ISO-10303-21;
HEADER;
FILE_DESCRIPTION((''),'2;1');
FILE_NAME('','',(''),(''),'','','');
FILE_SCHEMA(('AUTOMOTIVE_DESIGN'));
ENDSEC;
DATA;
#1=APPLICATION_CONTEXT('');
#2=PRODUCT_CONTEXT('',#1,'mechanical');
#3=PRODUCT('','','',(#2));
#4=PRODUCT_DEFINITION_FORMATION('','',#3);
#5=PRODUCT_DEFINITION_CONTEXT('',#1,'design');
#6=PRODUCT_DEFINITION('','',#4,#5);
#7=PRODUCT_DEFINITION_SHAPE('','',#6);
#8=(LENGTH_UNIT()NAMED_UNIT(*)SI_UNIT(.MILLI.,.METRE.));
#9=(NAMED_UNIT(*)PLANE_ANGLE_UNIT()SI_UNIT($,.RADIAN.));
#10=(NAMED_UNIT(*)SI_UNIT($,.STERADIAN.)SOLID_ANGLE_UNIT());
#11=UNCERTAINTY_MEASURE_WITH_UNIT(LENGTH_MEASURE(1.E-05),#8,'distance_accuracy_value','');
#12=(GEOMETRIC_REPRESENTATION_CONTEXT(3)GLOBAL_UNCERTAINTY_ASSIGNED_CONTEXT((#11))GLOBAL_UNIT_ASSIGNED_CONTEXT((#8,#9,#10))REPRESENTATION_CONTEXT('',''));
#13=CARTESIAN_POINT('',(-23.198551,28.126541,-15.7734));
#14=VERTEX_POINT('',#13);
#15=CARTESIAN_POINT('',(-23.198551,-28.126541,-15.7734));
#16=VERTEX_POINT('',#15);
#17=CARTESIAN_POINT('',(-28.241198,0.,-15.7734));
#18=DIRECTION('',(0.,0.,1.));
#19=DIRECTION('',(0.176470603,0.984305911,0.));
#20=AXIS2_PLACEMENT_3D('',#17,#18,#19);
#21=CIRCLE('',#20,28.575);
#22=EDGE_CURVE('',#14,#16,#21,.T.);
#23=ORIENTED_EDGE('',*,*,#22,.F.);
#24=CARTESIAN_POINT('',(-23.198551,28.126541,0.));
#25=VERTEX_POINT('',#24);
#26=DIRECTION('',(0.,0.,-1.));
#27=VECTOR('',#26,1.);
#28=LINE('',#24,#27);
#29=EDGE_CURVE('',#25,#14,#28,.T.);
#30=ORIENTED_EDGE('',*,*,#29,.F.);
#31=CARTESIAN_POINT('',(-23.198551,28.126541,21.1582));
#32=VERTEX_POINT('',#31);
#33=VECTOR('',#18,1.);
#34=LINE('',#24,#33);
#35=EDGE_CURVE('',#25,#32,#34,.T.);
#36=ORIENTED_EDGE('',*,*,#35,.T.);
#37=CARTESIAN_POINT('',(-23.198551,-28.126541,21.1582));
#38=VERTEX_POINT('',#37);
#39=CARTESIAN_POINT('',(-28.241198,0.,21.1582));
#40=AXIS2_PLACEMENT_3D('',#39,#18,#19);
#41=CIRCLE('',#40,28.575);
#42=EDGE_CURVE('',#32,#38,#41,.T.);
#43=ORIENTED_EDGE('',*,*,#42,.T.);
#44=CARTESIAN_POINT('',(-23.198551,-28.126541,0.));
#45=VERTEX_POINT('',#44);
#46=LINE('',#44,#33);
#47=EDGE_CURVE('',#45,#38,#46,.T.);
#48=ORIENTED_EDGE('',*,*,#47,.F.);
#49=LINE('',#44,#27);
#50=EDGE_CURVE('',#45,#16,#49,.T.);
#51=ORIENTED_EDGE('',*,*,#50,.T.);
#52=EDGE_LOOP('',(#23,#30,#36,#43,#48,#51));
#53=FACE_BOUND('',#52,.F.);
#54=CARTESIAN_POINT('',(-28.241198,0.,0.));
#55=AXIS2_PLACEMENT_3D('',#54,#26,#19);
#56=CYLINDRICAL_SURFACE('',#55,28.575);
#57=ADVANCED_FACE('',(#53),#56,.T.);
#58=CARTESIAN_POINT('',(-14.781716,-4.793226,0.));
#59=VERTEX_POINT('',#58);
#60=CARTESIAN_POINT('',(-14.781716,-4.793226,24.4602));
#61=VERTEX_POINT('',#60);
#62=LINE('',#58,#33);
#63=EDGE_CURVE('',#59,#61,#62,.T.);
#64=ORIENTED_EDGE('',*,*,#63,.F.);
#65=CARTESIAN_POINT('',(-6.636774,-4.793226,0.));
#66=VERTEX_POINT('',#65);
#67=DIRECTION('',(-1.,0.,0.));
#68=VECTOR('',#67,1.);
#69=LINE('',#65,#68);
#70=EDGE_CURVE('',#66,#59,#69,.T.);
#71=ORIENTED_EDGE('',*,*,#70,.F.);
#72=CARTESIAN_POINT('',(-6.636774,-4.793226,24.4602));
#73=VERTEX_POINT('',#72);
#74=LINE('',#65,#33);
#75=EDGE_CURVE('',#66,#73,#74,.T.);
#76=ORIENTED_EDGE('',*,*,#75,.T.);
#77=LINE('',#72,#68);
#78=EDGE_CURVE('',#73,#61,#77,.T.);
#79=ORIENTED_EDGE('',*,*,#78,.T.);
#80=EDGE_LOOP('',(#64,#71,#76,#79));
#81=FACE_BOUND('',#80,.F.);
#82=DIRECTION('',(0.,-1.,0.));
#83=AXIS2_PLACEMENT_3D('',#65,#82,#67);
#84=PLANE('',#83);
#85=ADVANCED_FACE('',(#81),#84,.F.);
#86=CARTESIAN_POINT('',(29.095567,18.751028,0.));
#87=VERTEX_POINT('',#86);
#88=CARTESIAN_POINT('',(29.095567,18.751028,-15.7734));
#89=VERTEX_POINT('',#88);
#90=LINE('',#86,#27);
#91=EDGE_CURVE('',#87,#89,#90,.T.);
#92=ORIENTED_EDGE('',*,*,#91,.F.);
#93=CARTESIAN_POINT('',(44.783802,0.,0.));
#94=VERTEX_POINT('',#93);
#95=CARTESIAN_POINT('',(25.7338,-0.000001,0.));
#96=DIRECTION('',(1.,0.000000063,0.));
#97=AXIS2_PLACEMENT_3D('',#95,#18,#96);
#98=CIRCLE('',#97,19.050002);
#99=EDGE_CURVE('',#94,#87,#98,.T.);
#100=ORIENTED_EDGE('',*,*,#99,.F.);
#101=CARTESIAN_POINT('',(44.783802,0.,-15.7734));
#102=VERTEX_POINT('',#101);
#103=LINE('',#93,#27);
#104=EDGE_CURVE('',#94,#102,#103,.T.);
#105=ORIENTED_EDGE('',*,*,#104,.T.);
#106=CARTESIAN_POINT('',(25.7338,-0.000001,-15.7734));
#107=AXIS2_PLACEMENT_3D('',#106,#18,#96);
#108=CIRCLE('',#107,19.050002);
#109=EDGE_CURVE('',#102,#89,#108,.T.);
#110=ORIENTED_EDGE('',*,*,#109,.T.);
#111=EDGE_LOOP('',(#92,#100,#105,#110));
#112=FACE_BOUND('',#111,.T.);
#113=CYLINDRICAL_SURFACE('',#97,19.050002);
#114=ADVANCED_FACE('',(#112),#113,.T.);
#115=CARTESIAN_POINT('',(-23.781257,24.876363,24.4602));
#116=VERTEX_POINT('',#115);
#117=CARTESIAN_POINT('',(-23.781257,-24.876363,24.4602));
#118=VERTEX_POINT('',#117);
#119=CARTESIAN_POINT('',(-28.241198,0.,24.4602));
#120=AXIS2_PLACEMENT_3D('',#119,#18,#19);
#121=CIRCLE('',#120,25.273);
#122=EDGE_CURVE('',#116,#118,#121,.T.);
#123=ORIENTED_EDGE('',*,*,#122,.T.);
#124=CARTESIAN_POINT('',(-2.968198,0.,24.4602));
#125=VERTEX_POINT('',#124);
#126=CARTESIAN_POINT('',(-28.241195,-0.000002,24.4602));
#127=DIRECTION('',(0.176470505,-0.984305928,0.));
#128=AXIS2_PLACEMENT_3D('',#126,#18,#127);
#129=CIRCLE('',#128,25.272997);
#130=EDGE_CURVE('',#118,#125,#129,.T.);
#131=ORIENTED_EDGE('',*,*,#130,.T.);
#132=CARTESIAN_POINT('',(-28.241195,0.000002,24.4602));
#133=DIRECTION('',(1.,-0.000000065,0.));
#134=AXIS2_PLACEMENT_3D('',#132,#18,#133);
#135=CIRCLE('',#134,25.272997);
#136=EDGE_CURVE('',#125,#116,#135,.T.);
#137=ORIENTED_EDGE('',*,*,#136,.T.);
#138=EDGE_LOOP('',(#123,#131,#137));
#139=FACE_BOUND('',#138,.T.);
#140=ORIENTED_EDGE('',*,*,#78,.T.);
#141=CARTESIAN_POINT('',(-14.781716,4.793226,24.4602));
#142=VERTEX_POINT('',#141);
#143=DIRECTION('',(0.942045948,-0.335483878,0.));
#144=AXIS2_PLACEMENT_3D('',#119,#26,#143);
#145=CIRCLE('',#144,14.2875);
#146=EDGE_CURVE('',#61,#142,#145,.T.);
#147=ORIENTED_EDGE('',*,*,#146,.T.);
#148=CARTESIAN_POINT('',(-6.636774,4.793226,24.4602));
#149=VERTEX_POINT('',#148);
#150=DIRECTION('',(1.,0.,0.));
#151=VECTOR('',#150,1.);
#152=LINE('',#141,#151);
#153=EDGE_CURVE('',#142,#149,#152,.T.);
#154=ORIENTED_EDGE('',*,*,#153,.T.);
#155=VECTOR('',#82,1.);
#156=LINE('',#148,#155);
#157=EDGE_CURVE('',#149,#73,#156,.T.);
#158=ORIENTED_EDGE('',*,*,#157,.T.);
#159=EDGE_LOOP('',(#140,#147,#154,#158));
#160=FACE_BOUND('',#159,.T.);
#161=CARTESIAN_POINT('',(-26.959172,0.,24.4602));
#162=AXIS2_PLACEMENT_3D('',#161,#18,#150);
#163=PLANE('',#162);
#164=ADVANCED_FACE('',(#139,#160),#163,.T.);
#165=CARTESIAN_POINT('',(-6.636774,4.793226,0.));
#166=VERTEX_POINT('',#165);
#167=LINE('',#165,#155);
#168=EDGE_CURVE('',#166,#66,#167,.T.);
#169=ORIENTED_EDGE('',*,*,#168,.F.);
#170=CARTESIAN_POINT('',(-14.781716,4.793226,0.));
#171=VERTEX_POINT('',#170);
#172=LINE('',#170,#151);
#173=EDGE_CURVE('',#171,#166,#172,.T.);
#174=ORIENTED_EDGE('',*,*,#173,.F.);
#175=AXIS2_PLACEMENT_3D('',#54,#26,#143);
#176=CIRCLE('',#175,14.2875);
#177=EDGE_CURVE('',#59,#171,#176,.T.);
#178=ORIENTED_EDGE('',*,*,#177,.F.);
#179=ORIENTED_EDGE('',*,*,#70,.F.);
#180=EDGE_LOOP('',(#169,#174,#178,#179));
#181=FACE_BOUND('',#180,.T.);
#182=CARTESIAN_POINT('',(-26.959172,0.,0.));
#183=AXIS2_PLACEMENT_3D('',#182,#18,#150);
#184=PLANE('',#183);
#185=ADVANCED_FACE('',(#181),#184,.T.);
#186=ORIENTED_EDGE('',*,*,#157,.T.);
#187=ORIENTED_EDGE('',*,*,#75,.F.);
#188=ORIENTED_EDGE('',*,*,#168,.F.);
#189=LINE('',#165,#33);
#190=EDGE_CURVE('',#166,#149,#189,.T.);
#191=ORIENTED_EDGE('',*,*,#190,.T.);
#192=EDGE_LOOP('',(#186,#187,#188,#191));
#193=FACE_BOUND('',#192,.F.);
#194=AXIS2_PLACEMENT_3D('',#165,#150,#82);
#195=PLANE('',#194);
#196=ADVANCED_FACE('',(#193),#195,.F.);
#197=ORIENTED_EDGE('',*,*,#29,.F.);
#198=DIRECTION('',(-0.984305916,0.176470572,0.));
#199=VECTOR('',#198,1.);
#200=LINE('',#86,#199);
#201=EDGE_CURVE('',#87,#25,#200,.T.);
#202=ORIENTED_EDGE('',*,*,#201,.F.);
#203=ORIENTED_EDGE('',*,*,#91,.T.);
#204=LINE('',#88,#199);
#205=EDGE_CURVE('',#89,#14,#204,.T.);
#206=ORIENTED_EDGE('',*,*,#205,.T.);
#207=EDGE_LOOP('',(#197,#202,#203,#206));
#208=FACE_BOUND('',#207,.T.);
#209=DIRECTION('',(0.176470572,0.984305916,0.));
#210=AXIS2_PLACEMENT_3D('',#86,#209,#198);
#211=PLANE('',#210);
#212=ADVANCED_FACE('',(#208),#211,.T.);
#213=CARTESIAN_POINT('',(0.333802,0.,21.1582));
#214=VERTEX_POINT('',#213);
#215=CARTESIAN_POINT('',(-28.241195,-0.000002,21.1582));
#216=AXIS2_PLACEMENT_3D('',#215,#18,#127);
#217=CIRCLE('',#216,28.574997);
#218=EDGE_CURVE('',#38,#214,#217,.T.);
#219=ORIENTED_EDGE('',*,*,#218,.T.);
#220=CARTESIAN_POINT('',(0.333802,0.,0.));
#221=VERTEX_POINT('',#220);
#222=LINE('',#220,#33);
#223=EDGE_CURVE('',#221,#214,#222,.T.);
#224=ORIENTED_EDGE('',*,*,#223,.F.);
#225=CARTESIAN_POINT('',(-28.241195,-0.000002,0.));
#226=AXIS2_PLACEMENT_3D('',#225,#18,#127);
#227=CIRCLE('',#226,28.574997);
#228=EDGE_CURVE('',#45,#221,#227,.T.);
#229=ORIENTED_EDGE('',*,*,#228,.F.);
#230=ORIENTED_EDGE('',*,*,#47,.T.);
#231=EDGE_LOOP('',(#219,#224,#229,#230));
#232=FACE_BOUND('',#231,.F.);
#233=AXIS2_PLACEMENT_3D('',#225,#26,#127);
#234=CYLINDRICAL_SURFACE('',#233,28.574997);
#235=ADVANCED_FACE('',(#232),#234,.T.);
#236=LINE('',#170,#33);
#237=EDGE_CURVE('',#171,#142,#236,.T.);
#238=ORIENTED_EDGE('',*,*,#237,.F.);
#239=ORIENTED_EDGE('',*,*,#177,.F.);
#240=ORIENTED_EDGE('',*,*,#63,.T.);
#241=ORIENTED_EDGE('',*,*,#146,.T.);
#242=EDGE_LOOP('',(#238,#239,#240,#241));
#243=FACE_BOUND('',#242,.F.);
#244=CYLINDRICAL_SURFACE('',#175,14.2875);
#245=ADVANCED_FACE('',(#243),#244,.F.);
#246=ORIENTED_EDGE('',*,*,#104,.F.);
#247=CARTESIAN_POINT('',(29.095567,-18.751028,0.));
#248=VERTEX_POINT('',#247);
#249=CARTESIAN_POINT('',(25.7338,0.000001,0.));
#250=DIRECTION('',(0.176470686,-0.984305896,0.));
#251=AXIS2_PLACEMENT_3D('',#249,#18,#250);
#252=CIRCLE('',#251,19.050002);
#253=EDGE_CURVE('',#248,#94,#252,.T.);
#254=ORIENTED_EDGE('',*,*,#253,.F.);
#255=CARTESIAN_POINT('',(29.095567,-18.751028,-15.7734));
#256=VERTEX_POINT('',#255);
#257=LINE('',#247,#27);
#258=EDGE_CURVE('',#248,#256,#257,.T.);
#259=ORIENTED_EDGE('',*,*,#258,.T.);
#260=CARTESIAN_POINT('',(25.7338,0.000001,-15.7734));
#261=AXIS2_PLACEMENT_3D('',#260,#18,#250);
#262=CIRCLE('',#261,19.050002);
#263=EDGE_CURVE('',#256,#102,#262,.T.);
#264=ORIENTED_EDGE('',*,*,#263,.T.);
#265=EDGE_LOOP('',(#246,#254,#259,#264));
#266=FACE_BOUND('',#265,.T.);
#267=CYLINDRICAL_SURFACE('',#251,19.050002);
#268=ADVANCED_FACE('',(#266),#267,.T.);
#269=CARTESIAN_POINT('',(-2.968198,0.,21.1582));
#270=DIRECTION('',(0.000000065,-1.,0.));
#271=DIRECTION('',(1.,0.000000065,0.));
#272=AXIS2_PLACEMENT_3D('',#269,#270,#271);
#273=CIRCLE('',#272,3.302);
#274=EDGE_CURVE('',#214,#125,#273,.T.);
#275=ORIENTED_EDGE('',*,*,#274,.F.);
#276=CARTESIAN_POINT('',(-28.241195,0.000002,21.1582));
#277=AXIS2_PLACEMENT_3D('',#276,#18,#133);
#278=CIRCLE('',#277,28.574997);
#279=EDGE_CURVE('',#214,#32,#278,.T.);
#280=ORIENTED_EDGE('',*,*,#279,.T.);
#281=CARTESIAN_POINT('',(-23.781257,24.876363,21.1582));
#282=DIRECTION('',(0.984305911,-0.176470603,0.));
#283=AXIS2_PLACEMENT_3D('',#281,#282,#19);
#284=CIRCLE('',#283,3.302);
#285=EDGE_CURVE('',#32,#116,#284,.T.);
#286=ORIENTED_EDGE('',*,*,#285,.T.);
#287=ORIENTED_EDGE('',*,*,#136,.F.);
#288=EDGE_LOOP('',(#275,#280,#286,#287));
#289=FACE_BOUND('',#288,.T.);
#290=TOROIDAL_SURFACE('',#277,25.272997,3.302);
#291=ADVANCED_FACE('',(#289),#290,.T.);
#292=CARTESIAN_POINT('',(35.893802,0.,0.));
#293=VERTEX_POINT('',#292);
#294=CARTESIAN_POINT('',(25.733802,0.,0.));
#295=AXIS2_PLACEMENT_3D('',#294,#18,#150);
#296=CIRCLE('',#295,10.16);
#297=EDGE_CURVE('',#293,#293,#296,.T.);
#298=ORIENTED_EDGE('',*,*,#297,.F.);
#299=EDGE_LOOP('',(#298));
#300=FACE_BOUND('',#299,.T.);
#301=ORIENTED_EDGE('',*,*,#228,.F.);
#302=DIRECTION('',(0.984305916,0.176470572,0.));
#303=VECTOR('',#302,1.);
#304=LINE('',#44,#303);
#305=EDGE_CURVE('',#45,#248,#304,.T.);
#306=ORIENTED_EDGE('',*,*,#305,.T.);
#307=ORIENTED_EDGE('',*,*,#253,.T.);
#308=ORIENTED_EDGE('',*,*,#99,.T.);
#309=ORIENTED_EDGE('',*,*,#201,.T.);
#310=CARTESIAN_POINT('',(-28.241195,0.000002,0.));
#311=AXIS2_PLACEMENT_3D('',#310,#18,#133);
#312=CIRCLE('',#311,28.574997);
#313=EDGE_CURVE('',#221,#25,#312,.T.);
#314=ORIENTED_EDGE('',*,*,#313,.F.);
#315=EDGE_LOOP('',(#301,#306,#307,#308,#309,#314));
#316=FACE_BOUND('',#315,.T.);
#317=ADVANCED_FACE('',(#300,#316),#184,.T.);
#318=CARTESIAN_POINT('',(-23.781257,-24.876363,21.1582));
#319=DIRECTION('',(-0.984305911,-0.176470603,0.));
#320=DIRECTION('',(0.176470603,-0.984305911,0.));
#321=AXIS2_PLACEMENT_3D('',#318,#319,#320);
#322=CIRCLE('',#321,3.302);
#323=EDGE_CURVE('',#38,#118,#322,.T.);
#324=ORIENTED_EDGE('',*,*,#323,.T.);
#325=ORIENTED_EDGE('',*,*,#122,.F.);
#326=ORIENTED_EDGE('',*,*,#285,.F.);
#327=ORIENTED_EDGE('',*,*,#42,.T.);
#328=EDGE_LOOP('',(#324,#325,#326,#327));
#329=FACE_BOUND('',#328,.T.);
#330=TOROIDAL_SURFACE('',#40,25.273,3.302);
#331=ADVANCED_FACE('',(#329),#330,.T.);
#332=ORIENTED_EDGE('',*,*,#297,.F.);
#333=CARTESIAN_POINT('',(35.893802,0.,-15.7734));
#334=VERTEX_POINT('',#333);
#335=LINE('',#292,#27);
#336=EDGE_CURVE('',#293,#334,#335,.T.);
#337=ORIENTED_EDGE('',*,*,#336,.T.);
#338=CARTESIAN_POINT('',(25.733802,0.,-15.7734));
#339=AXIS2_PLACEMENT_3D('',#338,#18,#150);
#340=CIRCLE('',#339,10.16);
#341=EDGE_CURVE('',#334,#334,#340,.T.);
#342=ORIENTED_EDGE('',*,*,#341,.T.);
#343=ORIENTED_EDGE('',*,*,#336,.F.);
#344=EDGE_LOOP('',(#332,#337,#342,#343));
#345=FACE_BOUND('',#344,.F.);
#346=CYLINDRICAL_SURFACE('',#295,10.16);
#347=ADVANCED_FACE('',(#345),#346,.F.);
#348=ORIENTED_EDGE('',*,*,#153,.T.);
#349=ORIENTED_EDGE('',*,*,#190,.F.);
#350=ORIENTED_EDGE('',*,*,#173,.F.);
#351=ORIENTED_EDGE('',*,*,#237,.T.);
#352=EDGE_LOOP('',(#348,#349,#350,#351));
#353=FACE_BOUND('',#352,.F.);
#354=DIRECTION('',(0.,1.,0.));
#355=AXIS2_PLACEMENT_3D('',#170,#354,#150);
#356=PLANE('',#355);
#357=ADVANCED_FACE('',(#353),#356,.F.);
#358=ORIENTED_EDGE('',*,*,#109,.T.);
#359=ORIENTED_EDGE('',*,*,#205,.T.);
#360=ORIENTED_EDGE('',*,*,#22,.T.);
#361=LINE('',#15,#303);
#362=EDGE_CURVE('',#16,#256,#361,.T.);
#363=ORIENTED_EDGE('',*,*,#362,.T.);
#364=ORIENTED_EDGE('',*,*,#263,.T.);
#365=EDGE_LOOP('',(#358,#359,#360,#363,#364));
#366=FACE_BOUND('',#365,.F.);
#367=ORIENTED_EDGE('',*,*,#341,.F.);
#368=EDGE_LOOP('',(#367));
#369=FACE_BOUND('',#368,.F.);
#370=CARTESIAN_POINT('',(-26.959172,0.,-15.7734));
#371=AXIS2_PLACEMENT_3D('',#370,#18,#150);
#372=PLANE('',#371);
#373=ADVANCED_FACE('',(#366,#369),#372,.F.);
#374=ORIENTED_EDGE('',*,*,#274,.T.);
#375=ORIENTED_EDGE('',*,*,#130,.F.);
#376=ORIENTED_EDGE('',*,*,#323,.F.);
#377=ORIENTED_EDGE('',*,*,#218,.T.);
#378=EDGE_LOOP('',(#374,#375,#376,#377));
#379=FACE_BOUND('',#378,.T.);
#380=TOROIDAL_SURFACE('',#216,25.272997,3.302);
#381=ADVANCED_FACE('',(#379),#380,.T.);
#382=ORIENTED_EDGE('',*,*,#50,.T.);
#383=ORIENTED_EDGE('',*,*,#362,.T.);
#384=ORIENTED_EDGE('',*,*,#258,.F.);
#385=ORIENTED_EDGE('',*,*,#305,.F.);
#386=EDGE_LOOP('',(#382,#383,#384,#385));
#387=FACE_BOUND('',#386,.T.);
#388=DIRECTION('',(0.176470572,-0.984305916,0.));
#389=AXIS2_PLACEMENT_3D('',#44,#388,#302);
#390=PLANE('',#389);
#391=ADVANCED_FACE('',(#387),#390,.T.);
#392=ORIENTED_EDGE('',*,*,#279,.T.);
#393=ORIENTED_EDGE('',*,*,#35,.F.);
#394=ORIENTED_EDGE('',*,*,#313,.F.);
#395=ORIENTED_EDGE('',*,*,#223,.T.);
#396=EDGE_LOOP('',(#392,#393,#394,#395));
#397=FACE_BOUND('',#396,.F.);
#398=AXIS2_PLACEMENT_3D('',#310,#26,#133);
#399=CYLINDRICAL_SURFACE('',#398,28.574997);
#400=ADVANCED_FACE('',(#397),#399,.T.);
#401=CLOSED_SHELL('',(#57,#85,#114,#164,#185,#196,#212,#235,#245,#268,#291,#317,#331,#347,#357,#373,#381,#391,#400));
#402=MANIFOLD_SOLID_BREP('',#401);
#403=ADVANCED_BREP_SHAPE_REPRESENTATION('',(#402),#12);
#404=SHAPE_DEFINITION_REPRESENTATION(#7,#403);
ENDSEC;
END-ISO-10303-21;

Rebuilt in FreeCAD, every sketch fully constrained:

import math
import FreeCAD as App
import Part
import Sketcher
Q = App.Units.Quantity


def edges_at(feature, points):
    """Names of the edges that pass closest to the given points."""
    edges = feature.Shape.Edges
    near = lambda p: min(range(len(edges)), key=lambda i: edges[i].distToShape(Part.Vertex(*p))[0])
    return sorted({f"Edge{near(p) + 1}" for p in points})

doc = App.newDocument("Part")
params = doc.addObject("Spreadsheet::Sheet", "Params")
for row, (alias, value) in enumerate([
    ("sketch1_diameter", "0.8 in"),
    ("sketch1_radius", "0.7500001 in"),
    ("sketch1_radius2", "1.125 in"),
    ("pad1_length", "0.621 in"),
    ("sketch2_radius", "1.1249999 in"),
    ("sketch2_radius2", "0.5625 in"),
    ("pad2_length", "0.963 in"),
    ("fillet_radius", "0.13 in"),
], start=1):
    params.set(f"A{row}", alias)
    params.set(f"B{row}", "=" + value)
    params.setAlias(f"B{row}", alias)

body = doc.addObject("PartDesign::Body", "Body")

sketch1 = body.newObject("Sketcher::SketchObject", "Sketch")
sketch1.AttachmentSupport = (doc.getObject("XY_Plane"), [""])
sketch1.MapMode = "FlatFace"
sketch1.addGeometry([
    Part.ArcOfCircle(Part.Circle(App.Vector(-28, 0, 0), App.Vector(0, 0, 1), 29), math.radians(80), math.radians(280)),
    Part.LineSegment(App.Vector(-23, -28, 0), App.Vector(29, -19, 0)),
    Part.ArcOfCircle(Part.Circle(App.Vector(26, 0, 0), App.Vector(0, 0, 1), 19), math.radians(-80), math.radians(0)),
    Part.ArcOfCircle(Part.Circle(App.Vector(26, 0, 0), App.Vector(0, 0, 1), 19), math.radians(0), math.radians(80)),
    Part.LineSegment(App.Vector(29, 19, 0), App.Vector(-23, 28, 0)),
    Part.Circle(App.Vector(26, 0, 0), App.Vector(0, 0, 1), 10),
], False)
sketch1.addConstraint([
    Sketcher.Constraint("Tangent", 0, 2, 1, 1),
    Sketcher.Constraint("Tangent", 1, 2, 2, 1),
    Sketcher.Constraint("Tangent", 2, 2, 3, 1),
    Sketcher.Constraint("Tangent", 3, 2, 4, 1),
    Sketcher.Constraint("Tangent", 4, 2, 0, 1),
    Sketcher.Constraint("Coincident", 5, 3, 2, 3),
    Sketcher.Constraint("Equal", 2, 3),
    Sketcher.Constraint("Symmetric", 1, 2, 3, 2, -1),
    Sketcher.Constraint("PointOnObject", 2, 2, -1),
    Sketcher.Constraint("Diameter", 5, Q("0.8 in")),
    Sketcher.Constraint("Radius", 2, Q("0.7500001 in")),
    Sketcher.Constraint("Radius", 0, Q("1.125 in")),
    Sketcher.Constraint("DistanceX", 0, 3, 2, 3, Q("2.1249999 in")),
    Sketcher.Constraint("DistanceX", 0, 3, -1, 1, Q("28.241198 mm")),
])
sketch1.setExpression("Constraints[9]", "Params.sketch1_diameter")
sketch1.setExpression("Constraints[10]", "Params.sketch1_radius")
sketch1.setExpression("Constraints[11]", "Params.sketch1_radius2")
pad1 = body.newObject("PartDesign::Pad", "Pad")
pad1.Profile = sketch1
pad1.setExpression("Length", "Params.pad1_length")
pad1.Reversed = True

sketch2 = body.newObject("Sketcher::SketchObject", "Sketch001")
sketch2.AttachmentSupport = (doc.getObject("XY_Plane"), [""])
sketch2.MapMode = "FlatFace"
sketch2.addGeometry([
    Part.ArcOfCircle(Part.Circle(App.Vector(-28, 0, 0), App.Vector(0, 0, 1), 29), math.radians(-80), math.radians(0)),
    Part.ArcOfCircle(Part.Circle(App.Vector(-28, 0, 0), App.Vector(0, 0, 1), 29), math.radians(0), math.radians(80)),
    Part.ArcOfCircle(Part.Circle(App.Vector(-28, 0, 0), App.Vector(0, 0, 1), 29), math.radians(80), math.radians(280)),
    Part.LineSegment(App.Vector(-7, -5, 0), App.Vector(-15, -5, 0)),
    Part.ArcOfCircle(Part.Circle(App.Vector(-28, 0, 0), App.Vector(0, 0, 1), 14), math.radians(20), math.radians(340)),
    Part.LineSegment(App.Vector(-15, 5, 0), App.Vector(-7, 5, 0)),
    Part.LineSegment(App.Vector(-7, 5, 0), App.Vector(-7, -5, 0)),
], False)
sketch2.addConstraint([
    Sketcher.Constraint("Tangent", 0, 2, 1, 1),
    Sketcher.Constraint("Tangent", 1, 2, 2, 1),
    Sketcher.Constraint("Tangent", 2, 2, 0, 1),
    Sketcher.Constraint("Coincident", 3, 2, 4, 2),
    Sketcher.Constraint("Coincident", 4, 1, 5, 1),
    Sketcher.Constraint("Coincident", 5, 2, 6, 1),
    Sketcher.Constraint("Coincident", 6, 2, 3, 1),
    Sketcher.Constraint("Horizontal", 3),
    Sketcher.Constraint("Horizontal", 5),
    Sketcher.Constraint("Vertical", 6),
    Sketcher.Constraint("Coincident", 4, 3, 0, 3),
    Sketcher.Constraint("Symmetric", 1, 2, 2, 2, -1),
    Sketcher.Constraint("PointOnObject", 0, 2, -1),
    Sketcher.Constraint("Vertical", 3, 2, 4, 1),
    Sketcher.Constraint("Radius", 0, Q("1.1249999 in")),
    Sketcher.Constraint("Radius", 4, Q("0.5625 in")),
    Sketcher.Constraint("DistanceX", 2, 3, -1, 1, Q("28.241198 mm")),
    Sketcher.Constraint("DistanceX", 3, 2, 3, 1, Q("8.144942 mm")),
    Sketcher.Constraint("DistanceY", 6, 2, 6, 1, Q("9.586452 mm")),
    Sketcher.Constraint("DistanceX", 1, 2, -1, 1, Q("23.198551 mm")),
])
sketch2.setExpression("Constraints[14]", "Params.sketch2_radius")
sketch2.setExpression("Constraints[15]", "Params.sketch2_radius2")
pad2 = body.newObject("PartDesign::Pad", "Pad001")
pad2.Profile = sketch2
pad2.setExpression("Length", "Params.pad2_length")
doc.recompute()

fillet = body.newObject("PartDesign::Fillet", "Fillet")
fillet.Base = (pad2, edges_at(pad2, [(-56.816, 0, 24.46)]))
fillet.setExpression("Radius", "Params.fillet_radius")

doc.recompute()
